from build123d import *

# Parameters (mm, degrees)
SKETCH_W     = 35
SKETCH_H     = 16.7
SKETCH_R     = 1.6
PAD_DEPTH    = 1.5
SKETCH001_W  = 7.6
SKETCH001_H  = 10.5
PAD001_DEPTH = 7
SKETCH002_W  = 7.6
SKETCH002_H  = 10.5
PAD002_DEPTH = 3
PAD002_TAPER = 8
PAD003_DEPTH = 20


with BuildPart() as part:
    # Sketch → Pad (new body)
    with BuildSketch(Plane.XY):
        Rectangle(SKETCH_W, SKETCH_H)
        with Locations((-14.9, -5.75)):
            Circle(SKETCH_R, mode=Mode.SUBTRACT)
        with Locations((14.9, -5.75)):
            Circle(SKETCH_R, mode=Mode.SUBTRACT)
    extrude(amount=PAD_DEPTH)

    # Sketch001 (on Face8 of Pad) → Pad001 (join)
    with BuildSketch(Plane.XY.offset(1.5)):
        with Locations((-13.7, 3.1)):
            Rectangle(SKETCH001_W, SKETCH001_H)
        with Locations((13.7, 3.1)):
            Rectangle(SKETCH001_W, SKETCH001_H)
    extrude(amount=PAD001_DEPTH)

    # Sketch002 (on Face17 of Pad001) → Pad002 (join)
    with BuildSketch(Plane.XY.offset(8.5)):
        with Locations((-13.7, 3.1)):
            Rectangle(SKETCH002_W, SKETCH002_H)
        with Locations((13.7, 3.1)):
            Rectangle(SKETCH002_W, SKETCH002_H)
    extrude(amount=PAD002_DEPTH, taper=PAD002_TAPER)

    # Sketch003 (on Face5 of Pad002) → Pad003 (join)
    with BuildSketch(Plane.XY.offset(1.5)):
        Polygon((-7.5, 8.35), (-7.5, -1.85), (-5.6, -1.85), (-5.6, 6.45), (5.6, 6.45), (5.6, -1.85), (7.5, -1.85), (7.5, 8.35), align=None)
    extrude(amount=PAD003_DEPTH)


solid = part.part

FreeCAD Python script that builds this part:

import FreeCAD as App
import Part
import Sketcher

V = App.Vector
Q = App.Units.Quantity


def add_polygon(sketch, points):
    """Adds a closed chain of lines whose ends are joined by coincident constraints."""
    first, n = sketch.GeometryCount, len(points)
    for a, b in zip(points, points[1:] + points[:1]):
        sketch.addGeometry(Part.LineSegment(App.Vector(*a, 0), App.Vector(*b, 0)), False)
    for i in range(n):
        sketch.addConstraint(Sketcher.Constraint("Coincident", first + i, 2, first + (i + 1) % n, 1))

doc = App.newDocument("Part")
body = doc.addObject("PartDesign::Body", "Body")

# Sketch on XY plane
sketch1 = doc.addObject("Sketcher::SketchObject", "Sketch")
body.addObject(sketch1)
sketch1.AttachmentSupport = (doc.XY_Plane, [""])
sketch1.MapMode = "FlatFace"
add_polygon(sketch1, [(-17.5, 8.3), (-17.5, -8.3), (17.5, -8.3), (17.5, 8.3)])  # lines 0-3
sketch1.addGeometry(Part.Circle(V(-14.9, -5.8, 0), V(0, 0, 1), 1.6), False)  # 4
sketch1.addGeometry(Part.Circle(V(14.9, -5.8, 0), V(0, 0, 1), 1.6), False)  # 5
sketch1.addConstraint([
    Sketcher.Constraint("Vertical", 0),
    Sketcher.Constraint("Horizontal", 1),
    Sketcher.Constraint("Vertical", 2),
    Sketcher.Constraint("Horizontal", 3),
    Sketcher.Constraint("Equal", 4, 5),
    Sketcher.Constraint("Symmetric", 0, 2, 2, 2, -1, 1),
    Sketcher.Constraint("Symmetric", 4, 3, 5, 3, -2),
    Sketcher.Constraint("Diameter", 4, Q("3.2 mm")),
    Sketcher.Constraint("DistanceX", 1, 1, 1, 2, Q("35 mm")),
    Sketcher.Constraint("DistanceY", 0, 2, 0, 1, Q("16.7 mm")),
    Sketcher.Constraint("DistanceX", 4, 3, -1, 1, Q("14.9 mm")),
    Sketcher.Constraint("DistanceY", 0, 2, 4, 3, Q("2.6 mm")),
])
pad1 = doc.addObject("PartDesign::Pad", "Pad")
body.addObject(pad1)
pad1.Profile = sketch1
pad1.Length = 1.5

# Sketch on XY plane
sketch2 = doc.addObject("Sketcher::SketchObject", "Sketch001")
body.addObject(sketch2)
sketch2.AttachmentSupport = (doc.XY_Plane, [""])
sketch2.MapMode = "FlatFace"
sketch2.AttachmentOffset = App.Placement(V(0, 0, 1.5), App.Rotation())
add_polygon(sketch2, [(-18, 8), (-18, -2), (-10, -2), (-10, 8)])  # lines 0-3
add_polygon(sketch2, [(10, 8), (10, -2), (18, -2), (18, 8)])  # lines 4-7
sketch2.addConstraint([
    Sketcher.Constraint("Vertical", 0),
    Sketcher.Constraint("Horizontal", 1),
    Sketcher.Constraint("Vertical", 2),
    Sketcher.Constraint("Horizontal", 3),
    Sketcher.Constraint("Vertical", 4),
    Sketcher.Constraint("Horizontal", 5),
    Sketcher.Constraint("Vertical", 6),
    Sketcher.Constraint("Horizontal", 7),
    Sketcher.Constraint("Symmetric", 1, 2, 4, 2, -2),
    Sketcher.Constraint("Symmetric", 3, 2, 6, 2, -2),
    Sketcher.Constraint("DistanceX", 1, 1, 1, 2, Q("7.6 mm")),
    Sketcher.Constraint("DistanceY", 0, 2, 0, 1, Q("10.5 mm")),
    Sketcher.Constraint("DistanceX", 0, 2, 5, 2, Q("35 mm")),
    Sketcher.Constraint("DistanceY", 0, 2, -1, 1, Q("2.15 mm")),
])
pad2 = doc.addObject("PartDesign::Pad", "Pad001")
body.addObject(pad2)
pad2.Profile = sketch2
pad2.Length = 7

# Sketch on XY plane
sketch3 = doc.addObject("Sketcher::SketchObject", "Sketch002")
body.addObject(sketch3)
sketch3.AttachmentSupport = (doc.XY_Plane, [""])
sketch3.MapMode = "FlatFace"
sketch3.AttachmentOffset = App.Placement(V(0, 0, 8.5), App.Rotation())
add_polygon(sketch3, [(-18, 8), (-18, -2), (-10, -2), (-10, 8)])  # lines 0-3
add_polygon(sketch3, [(10, 8), (10, -2), (18, -2), (18, 8)])  # lines 4-7
sketch3.addConstraint([
    Sketcher.Constraint("Vertical", 0),
    Sketcher.Constraint("Horizontal", 1),
    Sketcher.Constraint("Vertical", 2),
    Sketcher.Constraint("Horizontal", 3),
    Sketcher.Constraint("Vertical", 4),
    Sketcher.Constraint("Horizontal", 5),
    Sketcher.Constraint("Vertical", 6),
    Sketcher.Constraint("Horizontal", 7),
    Sketcher.Constraint("Symmetric", 1, 2, 4, 2, -2),
    Sketcher.Constraint("Symmetric", 3, 2, 6, 2, -2),
    Sketcher.Constraint("DistanceX", 1, 1, 1, 2, Q("7.6 mm")),
    Sketcher.Constraint("DistanceY", 0, 2, 0, 1, Q("10.5 mm")),
    Sketcher.Constraint("DistanceX", 0, 2, 5, 2, Q("35 mm")),
    Sketcher.Constraint("DistanceY", 0, 2, -1, 1, Q("2.15 mm")),
])
pad3 = doc.addObject("PartDesign::Pad", "Pad002")
body.addObject(pad3)
pad3.Profile = sketch3
pad3.Length = 3
pad3.TaperAngle = -8

# Sketch on XY plane
sketch4 = doc.addObject("Sketcher::SketchObject", "Sketch003")
body.addObject(sketch4)
sketch4.AttachmentSupport = (doc.XY_Plane, [""])
sketch4.MapMode = "FlatFace"
sketch4.AttachmentOffset = App.Placement(V(0, 0, 1.5), App.Rotation())
add_polygon(sketch4, [(-7.5, 8.3), (-7.5, -1.9), (-5.6, -1.9), (-5.6, 6.5), (5.6, 6.5), (5.6, -1.9), (7.5, -1.9), (7.5, 8.3)])  # lines 0-7
sketch4.addConstraint([
    Sketcher.Constraint("Vertical", 0),
    Sketcher.Constraint("Horizontal", 1),
    Sketcher.Constraint("Vertical", 2),
    Sketcher.Constraint("Horizontal", 3),
    Sketcher.Constraint("Vertical", 4),
    Sketcher.Constraint("Horizontal", 5),
    Sketcher.Constraint("Vertical", 6),
    Sketcher.Constraint("Horizontal", 7),
    Sketcher.Constraint("Symmetric", 1, 2, 4, 2, -2),
    Sketcher.Constraint("Equal", 1, 5),
    Sketcher.Constraint("DistanceX", 7, 2, 7, 1, Q("15 mm")),
    Sketcher.Constraint("DistanceX", 1, 1, 1, 2, Q("1.9 mm")),
    Sketcher.Constraint("DistanceY", 0, 2, 0, 1, Q("10.2 mm")),
    Sketcher.Constraint("DistanceY", 2, 1, 2, 2, Q("8.3 mm")),
    Sketcher.Constraint("DistanceY", 0, 2, -1, 1, Q("1.85 mm")),
])
pad4 = doc.addObject("PartDesign::Pad", "Pad003")
body.addObject(pad4)
pad4.Profile = sketch4
pad4.Length = 20

doc.recompute()
